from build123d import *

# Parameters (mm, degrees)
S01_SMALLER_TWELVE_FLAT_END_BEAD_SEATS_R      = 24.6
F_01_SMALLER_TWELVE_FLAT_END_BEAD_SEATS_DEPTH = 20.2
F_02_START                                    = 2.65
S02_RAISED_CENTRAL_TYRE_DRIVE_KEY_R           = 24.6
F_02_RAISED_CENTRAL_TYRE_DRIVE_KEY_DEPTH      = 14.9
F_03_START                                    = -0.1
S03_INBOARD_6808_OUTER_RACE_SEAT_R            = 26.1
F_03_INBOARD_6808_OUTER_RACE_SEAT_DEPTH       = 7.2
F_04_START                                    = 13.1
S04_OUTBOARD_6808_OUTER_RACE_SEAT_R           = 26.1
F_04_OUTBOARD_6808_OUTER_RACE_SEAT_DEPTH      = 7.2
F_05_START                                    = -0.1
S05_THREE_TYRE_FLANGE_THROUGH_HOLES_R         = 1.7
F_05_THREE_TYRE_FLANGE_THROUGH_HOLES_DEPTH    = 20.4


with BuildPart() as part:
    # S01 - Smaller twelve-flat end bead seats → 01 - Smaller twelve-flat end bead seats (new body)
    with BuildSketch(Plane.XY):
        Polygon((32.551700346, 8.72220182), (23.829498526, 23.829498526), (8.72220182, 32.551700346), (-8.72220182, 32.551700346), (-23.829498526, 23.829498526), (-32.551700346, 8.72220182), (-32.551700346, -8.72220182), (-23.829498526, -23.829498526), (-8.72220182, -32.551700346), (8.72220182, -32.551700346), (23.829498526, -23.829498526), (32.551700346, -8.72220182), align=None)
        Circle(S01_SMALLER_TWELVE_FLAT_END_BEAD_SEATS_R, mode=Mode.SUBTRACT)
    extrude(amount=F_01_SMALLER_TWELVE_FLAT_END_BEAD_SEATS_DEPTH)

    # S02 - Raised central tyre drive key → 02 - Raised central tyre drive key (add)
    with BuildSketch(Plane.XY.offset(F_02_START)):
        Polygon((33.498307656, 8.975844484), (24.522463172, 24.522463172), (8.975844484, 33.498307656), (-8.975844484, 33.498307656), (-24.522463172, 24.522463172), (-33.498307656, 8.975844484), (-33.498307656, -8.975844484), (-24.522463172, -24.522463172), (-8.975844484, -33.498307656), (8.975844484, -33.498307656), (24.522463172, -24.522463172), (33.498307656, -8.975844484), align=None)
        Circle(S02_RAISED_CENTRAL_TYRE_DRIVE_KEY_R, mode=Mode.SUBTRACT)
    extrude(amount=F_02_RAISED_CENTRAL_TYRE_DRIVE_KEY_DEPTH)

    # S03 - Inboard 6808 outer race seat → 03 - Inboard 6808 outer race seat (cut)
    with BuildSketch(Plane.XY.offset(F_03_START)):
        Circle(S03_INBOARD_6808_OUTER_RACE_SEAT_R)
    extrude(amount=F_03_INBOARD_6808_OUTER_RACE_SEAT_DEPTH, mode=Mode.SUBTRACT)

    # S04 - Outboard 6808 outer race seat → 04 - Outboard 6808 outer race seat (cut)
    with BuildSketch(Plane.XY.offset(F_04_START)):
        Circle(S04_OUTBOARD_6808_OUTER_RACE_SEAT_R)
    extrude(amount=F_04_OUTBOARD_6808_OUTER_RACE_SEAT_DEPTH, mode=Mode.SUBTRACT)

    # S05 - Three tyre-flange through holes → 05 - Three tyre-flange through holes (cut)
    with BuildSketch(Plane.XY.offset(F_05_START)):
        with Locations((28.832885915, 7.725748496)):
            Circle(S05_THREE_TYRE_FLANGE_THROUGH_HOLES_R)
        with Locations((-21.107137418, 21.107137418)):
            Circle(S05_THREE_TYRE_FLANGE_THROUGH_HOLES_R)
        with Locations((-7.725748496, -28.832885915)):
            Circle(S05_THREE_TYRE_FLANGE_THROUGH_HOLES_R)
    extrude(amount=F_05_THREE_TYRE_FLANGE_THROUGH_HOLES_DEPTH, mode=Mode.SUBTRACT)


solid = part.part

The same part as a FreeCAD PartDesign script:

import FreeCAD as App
import Part
import Sketcher

V = App.Vector
Q = App.Units.Quantity


def add_polygon(sketch, points):
    """Adds a closed chain of lines whose ends are joined by coincident constraints."""
    first, n = sketch.GeometryCount, len(points)
    for a, b in zip(points, points[1:] + points[:1]):
        sketch.addGeometry(Part.LineSegment(App.Vector(*a, 0), App.Vector(*b, 0)), False)
    for i in range(n):
        sketch.addConstraint(Sketcher.Constraint("Coincident", first + i, 2, first + (i + 1) % n, 1))

doc = App.newDocument("Part")
body = doc.addObject("PartDesign::Body", "Body")

sketch1 = body.newObject("Sketcher::SketchObject", "Sketch")
sketch1.AttachmentSupport = (doc.getObject("XY_Plane"), [""])
sketch1.MapMode = "FlatFace"
add_polygon(sketch1, [(33, 9), (24, 24), (9, 33), (-9, 33), (-24, 24), (-33, 9), (-33, -9), (-24, -24), (-9, -33), (9, -33), (24, -24), (33, -9)])
sketch1.addGeometry(Part.Circle(V(0, 0, 0), V(0, 0, 1), 25), False)
sketch1.addConstraint([
    Sketcher.Constraint("Horizontal", 2),
    Sketcher.Constraint("Vertical", 5),
    Sketcher.Constraint("Horizontal", 8),
    Sketcher.Constraint("Vertical", 11),
    Sketcher.Constraint("Coincident", 12, 3, -1, 1),
    Sketcher.Constraint("Symmetric", 0, 2, 6, 2, -1, 1),
    Sketcher.Constraint("Symmetric", 1, 2, 7, 2, -1, 1),
    Sketcher.Constraint("Symmetric", 3, 2, 9, 2, -1, 1),
    Sketcher.Constraint("Symmetric", 4, 2, 10, 2, -1, 1),
    Sketcher.Constraint("Symmetric", 0, 2, 3, 2, -2),
    Sketcher.Constraint("Perpendicular", 0, 3),
    Sketcher.Constraint("Perpendicular", 1, 4),
    Sketcher.Constraint("Perpendicular", 3, 6),
    Sketcher.Constraint("Perpendicular", 6, 9),
    Sketcher.Constraint("Horizontal", 5, 2, 10, 2),
    Sketcher.Constraint("Equal", 8, 5),
    Sketcher.Constraint("Equal", 0, 1),
    Sketcher.Constraint("Diameter", 12, Q("49.2 mm")),
    Sketcher.Constraint("Angle", 0, Q("120 deg")),
    Sketcher.Constraint("DistanceX", -1, 1, 0, 2, Q("23.829499 mm")),
    Sketcher.Constraint("DistanceX", -1, 1, 1, 2, Q("8.722202 mm")),
])
pad1 = body.newObject("PartDesign::Pad", "Pad")
pad1.Profile = sketch1
pad1.Length = 20.2

sketch2 = body.newObject("Sketcher::SketchObject", "Sketch001")
sketch2.AttachmentSupport = (doc.getObject("XY_Plane"), [""])
sketch2.MapMode = "FlatFace"
sketch2.AttachmentOffset = App.Placement(V(0, 0, 2.65), App.Rotation())
add_polygon(sketch2, [(33, 9), (25, 25), (9, 33), (-9, 33), (-25, 25), (-33, 9), (-33, -9), (-25, -25), (-9, -33), (9, -33), (25, -25), (33, -9)])
sketch2.addGeometry(Part.Circle(V(0, 0, 0), V(0, 0, 1), 25), False)
sketch2.addConstraint([
    Sketcher.Constraint("Horizontal", 2),
    Sketcher.Constraint("Vertical", 5),
    Sketcher.Constraint("Horizontal", 8),
    Sketcher.Constraint("Vertical", 11),
    Sketcher.Constraint("Coincident", 12, 3, -1, 1),
    Sketcher.Constraint("Symmetric", 0, 2, 6, 2, -1, 1),
    Sketcher.Constraint("Symmetric", 1, 2, 7, 2, -1, 1),
    Sketcher.Constraint("Symmetric", 3, 2, 9, 2, -1, 1),
    Sketcher.Constraint("Symmetric", 4, 2, 10, 2, -1, 1),
    Sketcher.Constraint("Symmetric", 0, 2, 3, 2, -2),
    Sketcher.Constraint("Perpendicular", 0, 3),
    Sketcher.Constraint("Perpendicular", 1, 4),
    Sketcher.Constraint("Perpendicular", 3, 6),
    Sketcher.Constraint("Perpendicular", 6, 9),
    Sketcher.Constraint("Horizontal", 5, 2, 10, 2),
    Sketcher.Constraint("Equal", 8, 5),
    Sketcher.Constraint("Equal", 0, 1),
    Sketcher.Constraint("Diameter", 12, Q("49.2 mm")),
    Sketcher.Constraint("Angle", 0, Q("120 deg")),
    Sketcher.Constraint("DistanceX", 2, 2, 2, 1, Q("17.951689 mm")),
    Sketcher.Constraint("Distance", 0, Q("17.951689 mm")),
])
pad2 = body.newObject("PartDesign::Pad", "Pad001")
pad2.Profile = sketch2
pad2.Length = 14.9

sketch3 = body.newObject("Sketcher::SketchObject", "Sketch002")
sketch3.AttachmentSupport = (doc.getObject("XY_Plane"), [""])
sketch3.MapMode = "FlatFace"
sketch3.AttachmentOffset = App.Placement(V(0, 0, -0.1), App.Rotation())
sketch3.addGeometry(Part.Circle(V(0, 0, 0), V(0, 0, 1), 26), False)
sketch3.addConstraint([
    Sketcher.Constraint("Coincident", 0, 3, -1, 1),
    Sketcher.Constraint("Diameter", 0, Q("52.2 mm")),
])
pocket1 = body.newObject("PartDesign::Pocket", "Pocket")
pocket1.Profile = sketch3
pocket1.Length = 7.2
pocket1.Reversed = True

sketch4 = body.newObject("Sketcher::SketchObject", "Sketch003")
sketch4.AttachmentSupport = (doc.getObject("XY_Plane"), [""])
sketch4.MapMode = "FlatFace"
sketch4.AttachmentOffset = App.Placement(V(0, 0, 13.1), App.Rotation())
sketch4.addGeometry(Part.Circle(V(0, 0, 0), V(0, 0, 1), 26), False)
sketch4.addConstraint([
    Sketcher.Constraint("Coincident", 0, 3, -1, 1),
    Sketcher.Constraint("Diameter", 0, Q("52.2 mm")),
])
pocket2 = body.newObject("PartDesign::Pocket", "Pocket001")
pocket2.Profile = sketch4
pocket2.Length = 7.2
pocket2.Reversed = True

sketch5 = body.newObject("Sketcher::SketchObject", "Sketch004")
sketch5.AttachmentSupport = (doc.getObject("XY_Plane"), [""])
sketch5.MapMode = "FlatFace"
sketch5.AttachmentOffset = App.Placement(V(0, 0, -0.1), App.Rotation())
sketch5.addGeometry([
    Part.Circle(V(28.8, 7.7, 0), V(0, 0, 1), 1.7),
    Part.Circle(V(-21.1, 21.1, 0), V(0, 0, 1), 1.7),
    Part.Circle(V(-7.7, -28.8, 0), V(0, 0, 1), 1.7),
], False)
sketch5.addConstraint([
    Sketcher.Constraint("Equal", 0, 1),
    Sketcher.Constraint("Equal", 1, 2),
    Sketcher.Constraint("Diameter", 0, Q("3.4 mm")),
    Sketcher.Constraint("DistanceY", -1, 1, 0, 3, Q("7.725748 mm")),
    Sketcher.Constraint("DistanceX", 2, 3, -1, 1, Q("7.725748 mm")),
    Sketcher.Constraint("DistanceY", 0, 3, 1, 3, Q("13.381389 mm")),
    Sketcher.Constraint("DistanceX", 1, 3, 2, 3, Q("13.381389 mm")),
    Sketcher.Constraint("DistanceX", -1, 1, 0, 3, Q("28.832886 mm")),
    Sketcher.Constraint("DistanceY", 2, 3, -1, 1, Q("28.832886 mm")),
])
pocket3 = body.newObject("PartDesign::Pocket", "Pocket002")
pocket3.Profile = sketch5
pocket3.Length = 20.4
pocket3.Reversed = True

doc.recompute()
